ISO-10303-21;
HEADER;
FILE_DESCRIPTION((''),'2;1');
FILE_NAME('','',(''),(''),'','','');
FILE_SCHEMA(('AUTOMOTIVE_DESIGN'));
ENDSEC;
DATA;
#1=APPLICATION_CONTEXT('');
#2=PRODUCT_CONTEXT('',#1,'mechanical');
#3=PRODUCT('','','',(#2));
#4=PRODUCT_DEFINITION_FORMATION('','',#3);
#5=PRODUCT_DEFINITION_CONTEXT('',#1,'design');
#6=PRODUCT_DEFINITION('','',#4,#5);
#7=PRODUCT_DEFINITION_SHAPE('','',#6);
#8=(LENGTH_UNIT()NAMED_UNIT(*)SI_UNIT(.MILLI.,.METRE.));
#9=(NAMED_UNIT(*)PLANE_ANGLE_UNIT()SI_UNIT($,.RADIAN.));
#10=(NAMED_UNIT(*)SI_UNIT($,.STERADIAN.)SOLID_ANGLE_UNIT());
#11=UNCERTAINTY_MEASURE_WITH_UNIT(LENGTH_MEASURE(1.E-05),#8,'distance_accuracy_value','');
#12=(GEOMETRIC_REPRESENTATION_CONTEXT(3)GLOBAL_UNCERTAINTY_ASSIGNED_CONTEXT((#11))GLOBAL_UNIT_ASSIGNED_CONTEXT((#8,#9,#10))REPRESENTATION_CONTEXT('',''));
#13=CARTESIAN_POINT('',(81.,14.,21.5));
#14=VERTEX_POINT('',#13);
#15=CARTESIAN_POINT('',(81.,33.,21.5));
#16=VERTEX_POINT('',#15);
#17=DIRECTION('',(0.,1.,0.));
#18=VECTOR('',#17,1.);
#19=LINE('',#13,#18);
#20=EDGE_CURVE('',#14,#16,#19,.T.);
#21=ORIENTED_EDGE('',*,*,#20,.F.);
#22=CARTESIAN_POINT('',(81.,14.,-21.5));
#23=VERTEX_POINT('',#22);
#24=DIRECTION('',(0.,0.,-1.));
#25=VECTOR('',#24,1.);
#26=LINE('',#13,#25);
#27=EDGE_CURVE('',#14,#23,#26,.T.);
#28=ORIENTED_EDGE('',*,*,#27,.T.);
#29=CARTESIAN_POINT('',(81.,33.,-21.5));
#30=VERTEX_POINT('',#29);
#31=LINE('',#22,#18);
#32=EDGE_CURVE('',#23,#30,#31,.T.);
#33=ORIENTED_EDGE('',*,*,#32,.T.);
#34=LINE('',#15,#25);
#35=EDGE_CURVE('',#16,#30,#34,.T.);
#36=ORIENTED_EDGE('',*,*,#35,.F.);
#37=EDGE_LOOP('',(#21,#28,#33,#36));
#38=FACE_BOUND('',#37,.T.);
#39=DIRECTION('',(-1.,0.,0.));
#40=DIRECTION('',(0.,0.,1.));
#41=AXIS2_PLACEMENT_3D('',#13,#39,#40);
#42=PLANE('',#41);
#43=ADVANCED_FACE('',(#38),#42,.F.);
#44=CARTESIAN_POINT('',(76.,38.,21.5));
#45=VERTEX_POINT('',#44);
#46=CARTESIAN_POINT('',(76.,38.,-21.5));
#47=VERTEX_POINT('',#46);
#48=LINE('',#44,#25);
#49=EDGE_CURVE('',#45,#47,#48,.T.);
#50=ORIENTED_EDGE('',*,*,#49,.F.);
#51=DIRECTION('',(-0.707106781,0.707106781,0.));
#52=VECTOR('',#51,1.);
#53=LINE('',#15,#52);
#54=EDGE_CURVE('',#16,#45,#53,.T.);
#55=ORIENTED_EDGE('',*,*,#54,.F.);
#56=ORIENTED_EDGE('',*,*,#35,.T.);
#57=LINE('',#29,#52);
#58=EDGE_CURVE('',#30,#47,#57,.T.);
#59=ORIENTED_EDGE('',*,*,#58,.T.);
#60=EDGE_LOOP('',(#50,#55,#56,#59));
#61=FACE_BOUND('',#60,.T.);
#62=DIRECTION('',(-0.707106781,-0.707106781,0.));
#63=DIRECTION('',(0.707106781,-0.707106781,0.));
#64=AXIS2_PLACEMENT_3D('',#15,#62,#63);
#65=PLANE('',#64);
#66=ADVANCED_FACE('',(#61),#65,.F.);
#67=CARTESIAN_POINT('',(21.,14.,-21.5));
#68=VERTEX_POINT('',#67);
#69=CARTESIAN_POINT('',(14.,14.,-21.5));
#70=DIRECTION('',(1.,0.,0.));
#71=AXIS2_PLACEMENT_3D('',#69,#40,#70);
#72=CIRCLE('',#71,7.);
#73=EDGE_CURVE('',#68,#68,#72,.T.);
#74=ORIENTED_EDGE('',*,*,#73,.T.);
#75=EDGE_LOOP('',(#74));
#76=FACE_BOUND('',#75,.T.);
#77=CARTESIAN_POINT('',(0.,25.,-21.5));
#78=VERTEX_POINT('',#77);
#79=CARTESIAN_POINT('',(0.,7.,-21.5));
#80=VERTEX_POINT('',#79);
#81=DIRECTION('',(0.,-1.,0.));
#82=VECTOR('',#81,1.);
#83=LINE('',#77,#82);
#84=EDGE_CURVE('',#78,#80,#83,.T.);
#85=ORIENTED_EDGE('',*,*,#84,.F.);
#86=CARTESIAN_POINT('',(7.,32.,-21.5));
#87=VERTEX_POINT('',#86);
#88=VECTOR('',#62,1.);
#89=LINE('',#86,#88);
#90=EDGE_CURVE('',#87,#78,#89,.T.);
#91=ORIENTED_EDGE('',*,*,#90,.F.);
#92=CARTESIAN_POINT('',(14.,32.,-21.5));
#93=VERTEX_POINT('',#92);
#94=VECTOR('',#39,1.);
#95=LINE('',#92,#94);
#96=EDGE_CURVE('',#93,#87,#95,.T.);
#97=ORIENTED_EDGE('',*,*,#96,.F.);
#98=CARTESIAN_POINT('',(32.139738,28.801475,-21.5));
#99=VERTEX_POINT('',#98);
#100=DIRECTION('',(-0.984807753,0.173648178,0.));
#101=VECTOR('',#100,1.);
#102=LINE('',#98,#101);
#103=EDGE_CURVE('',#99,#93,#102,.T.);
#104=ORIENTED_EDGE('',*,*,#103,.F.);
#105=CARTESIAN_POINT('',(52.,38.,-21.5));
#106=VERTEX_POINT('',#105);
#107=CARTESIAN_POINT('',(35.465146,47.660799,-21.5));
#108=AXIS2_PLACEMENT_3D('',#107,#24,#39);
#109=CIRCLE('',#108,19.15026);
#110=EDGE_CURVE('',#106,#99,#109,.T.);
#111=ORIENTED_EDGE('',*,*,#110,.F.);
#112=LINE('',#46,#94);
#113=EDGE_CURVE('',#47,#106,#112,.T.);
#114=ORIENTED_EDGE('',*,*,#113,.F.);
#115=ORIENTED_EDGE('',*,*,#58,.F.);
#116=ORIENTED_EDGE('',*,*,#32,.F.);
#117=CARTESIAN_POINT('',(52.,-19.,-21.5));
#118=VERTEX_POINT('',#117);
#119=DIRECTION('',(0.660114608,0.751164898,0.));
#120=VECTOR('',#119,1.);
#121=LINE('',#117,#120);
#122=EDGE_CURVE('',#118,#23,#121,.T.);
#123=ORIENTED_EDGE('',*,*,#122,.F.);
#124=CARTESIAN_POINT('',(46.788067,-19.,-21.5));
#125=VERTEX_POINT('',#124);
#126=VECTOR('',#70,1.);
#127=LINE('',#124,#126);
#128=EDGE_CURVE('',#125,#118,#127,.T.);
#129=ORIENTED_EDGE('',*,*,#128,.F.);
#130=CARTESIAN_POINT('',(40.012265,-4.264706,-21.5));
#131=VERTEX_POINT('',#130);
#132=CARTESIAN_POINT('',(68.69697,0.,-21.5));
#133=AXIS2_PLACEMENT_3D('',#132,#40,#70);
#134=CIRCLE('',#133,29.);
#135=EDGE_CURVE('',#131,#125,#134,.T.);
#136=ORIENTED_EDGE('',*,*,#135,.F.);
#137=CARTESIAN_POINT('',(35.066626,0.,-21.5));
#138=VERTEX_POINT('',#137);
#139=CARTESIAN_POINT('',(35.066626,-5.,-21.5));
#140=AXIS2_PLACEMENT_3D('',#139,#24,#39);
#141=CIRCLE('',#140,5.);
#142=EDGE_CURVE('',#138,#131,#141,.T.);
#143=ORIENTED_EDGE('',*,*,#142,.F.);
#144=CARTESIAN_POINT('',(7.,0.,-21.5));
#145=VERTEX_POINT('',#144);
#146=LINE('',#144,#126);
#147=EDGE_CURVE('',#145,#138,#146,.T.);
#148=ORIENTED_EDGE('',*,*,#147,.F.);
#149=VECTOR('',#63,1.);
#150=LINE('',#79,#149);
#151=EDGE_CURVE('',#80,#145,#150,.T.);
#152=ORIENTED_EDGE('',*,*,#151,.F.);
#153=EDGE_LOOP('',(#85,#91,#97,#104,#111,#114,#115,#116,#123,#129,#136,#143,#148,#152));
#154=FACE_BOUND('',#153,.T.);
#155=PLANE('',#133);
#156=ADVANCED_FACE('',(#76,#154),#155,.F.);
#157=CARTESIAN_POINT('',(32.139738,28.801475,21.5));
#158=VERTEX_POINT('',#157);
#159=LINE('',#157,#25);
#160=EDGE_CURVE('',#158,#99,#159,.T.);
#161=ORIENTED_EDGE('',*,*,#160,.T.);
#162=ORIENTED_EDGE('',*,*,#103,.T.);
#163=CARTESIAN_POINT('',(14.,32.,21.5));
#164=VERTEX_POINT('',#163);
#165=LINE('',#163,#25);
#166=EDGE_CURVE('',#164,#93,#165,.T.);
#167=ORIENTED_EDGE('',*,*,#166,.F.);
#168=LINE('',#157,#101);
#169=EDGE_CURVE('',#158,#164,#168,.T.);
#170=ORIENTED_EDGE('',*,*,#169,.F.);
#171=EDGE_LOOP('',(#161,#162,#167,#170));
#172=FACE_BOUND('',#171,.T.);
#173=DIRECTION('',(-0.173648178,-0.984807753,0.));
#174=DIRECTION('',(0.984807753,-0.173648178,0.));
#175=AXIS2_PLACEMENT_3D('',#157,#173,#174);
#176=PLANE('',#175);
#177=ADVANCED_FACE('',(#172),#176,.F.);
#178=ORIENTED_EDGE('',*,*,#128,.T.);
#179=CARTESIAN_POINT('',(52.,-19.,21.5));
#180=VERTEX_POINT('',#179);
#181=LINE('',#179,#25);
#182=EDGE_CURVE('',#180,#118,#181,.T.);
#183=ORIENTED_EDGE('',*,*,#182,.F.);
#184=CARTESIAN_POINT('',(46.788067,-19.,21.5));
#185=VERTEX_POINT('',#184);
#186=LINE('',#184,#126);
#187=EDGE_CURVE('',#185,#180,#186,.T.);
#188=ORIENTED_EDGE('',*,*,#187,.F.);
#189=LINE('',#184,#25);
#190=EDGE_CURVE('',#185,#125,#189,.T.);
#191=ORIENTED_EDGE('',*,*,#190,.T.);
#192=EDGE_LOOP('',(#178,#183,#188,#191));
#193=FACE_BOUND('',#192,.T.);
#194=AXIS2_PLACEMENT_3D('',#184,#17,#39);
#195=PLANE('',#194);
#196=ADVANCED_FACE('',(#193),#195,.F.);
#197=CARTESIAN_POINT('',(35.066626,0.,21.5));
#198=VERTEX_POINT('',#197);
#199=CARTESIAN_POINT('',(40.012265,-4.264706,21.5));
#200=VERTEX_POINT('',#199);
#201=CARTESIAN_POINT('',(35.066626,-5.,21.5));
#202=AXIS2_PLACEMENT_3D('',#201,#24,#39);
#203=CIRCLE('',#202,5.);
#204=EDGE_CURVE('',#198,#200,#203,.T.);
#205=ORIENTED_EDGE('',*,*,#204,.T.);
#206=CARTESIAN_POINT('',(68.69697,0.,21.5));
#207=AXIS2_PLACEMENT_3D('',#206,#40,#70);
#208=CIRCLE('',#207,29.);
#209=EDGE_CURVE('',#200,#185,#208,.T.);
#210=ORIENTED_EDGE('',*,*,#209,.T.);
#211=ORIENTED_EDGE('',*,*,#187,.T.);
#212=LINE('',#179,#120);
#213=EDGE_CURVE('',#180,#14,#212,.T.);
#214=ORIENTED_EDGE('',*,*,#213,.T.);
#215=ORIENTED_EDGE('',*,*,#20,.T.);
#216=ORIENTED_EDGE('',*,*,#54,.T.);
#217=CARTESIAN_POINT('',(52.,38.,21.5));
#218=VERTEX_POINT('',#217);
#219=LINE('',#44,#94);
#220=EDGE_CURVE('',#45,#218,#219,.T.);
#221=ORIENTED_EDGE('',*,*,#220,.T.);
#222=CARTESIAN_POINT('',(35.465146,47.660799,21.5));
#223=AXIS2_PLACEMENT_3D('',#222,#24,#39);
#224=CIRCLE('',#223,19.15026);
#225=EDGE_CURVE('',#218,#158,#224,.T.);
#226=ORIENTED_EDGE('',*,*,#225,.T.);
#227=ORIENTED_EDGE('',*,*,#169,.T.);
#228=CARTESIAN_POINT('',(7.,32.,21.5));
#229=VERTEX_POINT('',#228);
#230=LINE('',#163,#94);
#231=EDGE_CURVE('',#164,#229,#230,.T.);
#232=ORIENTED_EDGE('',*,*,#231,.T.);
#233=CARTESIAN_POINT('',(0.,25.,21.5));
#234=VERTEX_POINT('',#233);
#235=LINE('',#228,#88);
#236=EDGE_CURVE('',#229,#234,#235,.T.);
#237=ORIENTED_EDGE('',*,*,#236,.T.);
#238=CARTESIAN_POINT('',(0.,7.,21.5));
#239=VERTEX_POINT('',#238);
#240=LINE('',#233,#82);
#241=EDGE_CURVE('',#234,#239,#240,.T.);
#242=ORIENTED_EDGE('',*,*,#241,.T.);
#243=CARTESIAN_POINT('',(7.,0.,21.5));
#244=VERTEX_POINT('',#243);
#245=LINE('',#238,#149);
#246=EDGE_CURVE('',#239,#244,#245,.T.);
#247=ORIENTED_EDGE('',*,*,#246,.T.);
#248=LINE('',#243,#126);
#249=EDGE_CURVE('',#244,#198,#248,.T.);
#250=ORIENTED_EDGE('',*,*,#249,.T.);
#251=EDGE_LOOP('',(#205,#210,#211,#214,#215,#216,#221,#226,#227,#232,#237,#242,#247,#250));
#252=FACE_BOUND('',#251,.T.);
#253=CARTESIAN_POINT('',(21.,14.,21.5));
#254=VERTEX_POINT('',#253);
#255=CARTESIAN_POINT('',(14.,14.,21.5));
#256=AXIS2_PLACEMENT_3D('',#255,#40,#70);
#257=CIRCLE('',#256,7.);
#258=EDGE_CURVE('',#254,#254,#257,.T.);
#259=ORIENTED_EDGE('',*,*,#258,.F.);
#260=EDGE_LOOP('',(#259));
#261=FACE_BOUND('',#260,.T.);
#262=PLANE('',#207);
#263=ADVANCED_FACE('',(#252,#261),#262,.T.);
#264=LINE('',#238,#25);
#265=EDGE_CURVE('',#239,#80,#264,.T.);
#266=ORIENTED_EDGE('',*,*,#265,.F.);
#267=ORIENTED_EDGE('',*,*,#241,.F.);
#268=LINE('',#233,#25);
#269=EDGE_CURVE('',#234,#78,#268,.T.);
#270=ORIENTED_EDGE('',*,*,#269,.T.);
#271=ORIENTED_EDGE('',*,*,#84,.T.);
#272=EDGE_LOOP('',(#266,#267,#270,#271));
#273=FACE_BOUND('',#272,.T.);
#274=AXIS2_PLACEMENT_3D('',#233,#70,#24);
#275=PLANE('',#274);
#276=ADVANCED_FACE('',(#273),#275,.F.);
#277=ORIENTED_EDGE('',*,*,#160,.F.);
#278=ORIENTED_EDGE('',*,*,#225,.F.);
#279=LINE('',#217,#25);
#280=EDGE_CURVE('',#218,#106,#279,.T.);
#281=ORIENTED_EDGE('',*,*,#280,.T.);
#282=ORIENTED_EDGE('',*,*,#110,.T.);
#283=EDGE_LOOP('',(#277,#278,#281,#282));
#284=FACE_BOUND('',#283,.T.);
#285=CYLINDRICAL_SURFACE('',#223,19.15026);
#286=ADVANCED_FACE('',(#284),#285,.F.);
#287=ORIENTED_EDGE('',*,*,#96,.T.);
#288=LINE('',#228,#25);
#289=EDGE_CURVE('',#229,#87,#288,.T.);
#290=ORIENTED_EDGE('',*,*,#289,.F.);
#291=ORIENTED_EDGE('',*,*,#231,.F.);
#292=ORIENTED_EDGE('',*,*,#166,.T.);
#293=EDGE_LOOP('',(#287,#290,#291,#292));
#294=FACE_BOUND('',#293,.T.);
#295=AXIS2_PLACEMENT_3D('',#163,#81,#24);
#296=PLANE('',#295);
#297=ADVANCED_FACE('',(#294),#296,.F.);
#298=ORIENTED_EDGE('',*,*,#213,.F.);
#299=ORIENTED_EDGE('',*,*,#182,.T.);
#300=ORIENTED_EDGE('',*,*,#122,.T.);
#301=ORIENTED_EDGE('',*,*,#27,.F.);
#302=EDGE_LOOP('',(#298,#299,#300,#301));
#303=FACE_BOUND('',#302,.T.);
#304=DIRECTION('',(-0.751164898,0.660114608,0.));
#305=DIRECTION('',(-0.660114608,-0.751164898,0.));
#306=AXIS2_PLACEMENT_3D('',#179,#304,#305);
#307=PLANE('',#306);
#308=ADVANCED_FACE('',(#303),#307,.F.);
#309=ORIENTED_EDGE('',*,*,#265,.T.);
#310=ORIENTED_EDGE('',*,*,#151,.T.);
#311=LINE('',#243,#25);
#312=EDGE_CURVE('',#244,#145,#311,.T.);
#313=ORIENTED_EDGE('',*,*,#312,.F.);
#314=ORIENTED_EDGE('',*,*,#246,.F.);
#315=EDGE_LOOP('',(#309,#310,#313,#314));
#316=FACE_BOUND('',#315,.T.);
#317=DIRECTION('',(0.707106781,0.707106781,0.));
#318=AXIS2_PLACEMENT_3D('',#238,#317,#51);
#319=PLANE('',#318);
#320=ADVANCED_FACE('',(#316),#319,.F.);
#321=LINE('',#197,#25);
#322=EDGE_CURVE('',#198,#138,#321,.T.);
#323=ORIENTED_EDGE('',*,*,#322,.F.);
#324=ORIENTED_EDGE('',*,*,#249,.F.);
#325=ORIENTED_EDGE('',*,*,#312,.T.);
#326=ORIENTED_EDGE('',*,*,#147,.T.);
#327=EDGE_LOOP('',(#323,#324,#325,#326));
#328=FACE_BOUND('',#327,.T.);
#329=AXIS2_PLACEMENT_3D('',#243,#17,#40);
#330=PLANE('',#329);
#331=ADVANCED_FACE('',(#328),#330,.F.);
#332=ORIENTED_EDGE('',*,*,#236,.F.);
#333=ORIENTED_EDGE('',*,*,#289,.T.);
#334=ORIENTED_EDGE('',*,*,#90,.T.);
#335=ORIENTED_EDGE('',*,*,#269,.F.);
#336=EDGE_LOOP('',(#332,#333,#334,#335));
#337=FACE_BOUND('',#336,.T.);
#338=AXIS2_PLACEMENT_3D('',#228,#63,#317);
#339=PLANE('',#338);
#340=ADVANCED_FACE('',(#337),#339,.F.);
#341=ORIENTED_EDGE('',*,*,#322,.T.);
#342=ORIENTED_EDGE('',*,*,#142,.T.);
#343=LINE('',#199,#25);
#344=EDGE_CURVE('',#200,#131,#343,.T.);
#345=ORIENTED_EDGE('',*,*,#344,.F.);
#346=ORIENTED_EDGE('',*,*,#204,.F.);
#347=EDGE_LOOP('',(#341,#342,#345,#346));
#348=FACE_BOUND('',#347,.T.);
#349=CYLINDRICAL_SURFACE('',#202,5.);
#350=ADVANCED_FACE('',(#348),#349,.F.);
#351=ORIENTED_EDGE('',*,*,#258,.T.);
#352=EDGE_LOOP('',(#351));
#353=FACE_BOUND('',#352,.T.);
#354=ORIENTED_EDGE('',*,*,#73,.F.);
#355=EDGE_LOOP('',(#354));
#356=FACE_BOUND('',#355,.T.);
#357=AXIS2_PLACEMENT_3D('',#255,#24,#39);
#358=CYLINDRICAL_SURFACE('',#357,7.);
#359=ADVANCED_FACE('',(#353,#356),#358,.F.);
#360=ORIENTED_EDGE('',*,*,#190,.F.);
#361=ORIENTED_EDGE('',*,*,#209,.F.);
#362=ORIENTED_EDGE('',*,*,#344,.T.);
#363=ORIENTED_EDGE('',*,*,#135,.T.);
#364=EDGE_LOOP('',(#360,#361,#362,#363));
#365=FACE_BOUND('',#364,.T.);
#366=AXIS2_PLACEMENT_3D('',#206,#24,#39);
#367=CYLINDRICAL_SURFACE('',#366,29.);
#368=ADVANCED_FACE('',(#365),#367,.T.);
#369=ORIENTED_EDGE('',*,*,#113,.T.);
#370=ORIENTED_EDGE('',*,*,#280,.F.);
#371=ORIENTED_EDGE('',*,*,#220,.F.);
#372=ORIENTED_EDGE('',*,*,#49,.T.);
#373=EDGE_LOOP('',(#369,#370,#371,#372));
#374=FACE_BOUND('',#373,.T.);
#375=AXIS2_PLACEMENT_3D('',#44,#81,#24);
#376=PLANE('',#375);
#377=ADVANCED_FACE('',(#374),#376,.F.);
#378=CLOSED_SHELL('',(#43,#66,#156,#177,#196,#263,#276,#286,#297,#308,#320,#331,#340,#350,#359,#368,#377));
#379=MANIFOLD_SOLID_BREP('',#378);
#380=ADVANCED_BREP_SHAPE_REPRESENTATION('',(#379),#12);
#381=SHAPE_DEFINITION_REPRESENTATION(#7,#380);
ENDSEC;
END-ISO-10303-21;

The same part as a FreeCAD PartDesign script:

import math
import FreeCAD as App
import Part
import Sketcher
from FreeCAD import Vector
Q = App.Units.Quantity

doc = App.newDocument("Part")
body = doc.addObject("PartDesign::Body", "Body")

# Sketch on XY plane
sketch1 = body.newObject("Sketcher::SketchObject", "Sketch")
sketch1.AttachmentSupport = (doc.getObject("XY_Plane"), [""])
sketch1.MapMode = "FlatFace"
sketch1.addGeometry(Part.LineSegment(Vector(47, -19, 0), Vector(52, -19, 0)), False)
sketch1.addGeometry(Part.LineSegment(Vector(52, -19, 0), Vector(81, 14, 0)), False)
sketch1.addGeometry(Part.LineSegment(Vector(81, 14, 0), Vector(81, 33, 0)), False)
sketch1.addGeometry(Part.LineSegment(Vector(81, 33, 0), Vector(76, 38, 0)), False)
sketch1.addGeometry(Part.LineSegment(Vector(76, 38, 0), Vector(52, 38, 0)), False)
sketch1.addGeometry(Part.ArcOfCircle(Part.Circle(Vector(35, 48, 0), Vector(0, 0, 1), 19), math.radians(-100), math.radians(-30)), False)
sketch1.addGeometry(Part.LineSegment(Vector(32, 29, 0), Vector(14, 32, 0)), False)
sketch1.addGeometry(Part.LineSegment(Vector(14, 32, 0), Vector(7, 32, 0)), False)
sketch1.addGeometry(Part.LineSegment(Vector(7, 32, 0), Vector(0, 25, 0)), False)
sketch1.addGeometry(Part.LineSegment(Vector(0, 25, 0), Vector(0, 7, 0)), False)
sketch1.addGeometry(Part.LineSegment(Vector(0, 7, 0), Vector(7, 0, 0)), False)
sketch1.addGeometry(Part.LineSegment(Vector(7, 0, 0), Vector(35, 0, 0)), False)
sketch1.addGeometry(Part.ArcOfCircle(Part.Circle(Vector(35, -5, 0), Vector(0, 0, 1), 5), math.radians(8), math.radians(90)), False)
sketch1.addGeometry(Part.ArcOfCircle(Part.Circle(Vector(69, 0, 0), Vector(0, 0, 1), 29), math.radians(-172), math.radians(-139)), False)
sketch1.addGeometry(Part.Circle(Vector(14, 14, 0), Vector(0, 0, 1), 7), False)
sketch1.addConstraint(Sketcher.Constraint("Coincident", 0, 2, 1, 1))
sketch1.addConstraint(Sketcher.Constraint("Coincident", 1, 2, 2, 1))
sketch1.addConstraint(Sketcher.Constraint("Coincident", 2, 2, 3, 1))
sketch1.addConstraint(Sketcher.Constraint("Coincident", 3, 2, 4, 1))
sketch1.addConstraint(Sketcher.Constraint("Coincident", 4, 2, 5, 2))
sketch1.addConstraint(Sketcher.Constraint("Tangent", 5, 1, 6, 1))
sketch1.addConstraint(Sketcher.Constraint("Coincident", 6, 2, 7, 1))
sketch1.addConstraint(Sketcher.Constraint("Coincident", 7, 2, 8, 1))
sketch1.addConstraint(Sketcher.Constraint("Coincident", 8, 2, 9, 1))
sketch1.addConstraint(Sketcher.Constraint("Coincident", 9, 2, 10, 1))
sketch1.addConstraint(Sketcher.Constraint("Coincident", 10, 2, 11, 1))
sketch1.addConstraint(Sketcher.Constraint("Tangent", 11, 2, 12, 2))
sketch1.addConstraint(Sketcher.Constraint("Tangent", 12, 1, 13, 1))
sketch1.addConstraint(Sketcher.Constraint("Coincident", 13, 2, 0, 1))
sketch1.addConstraint(Sketcher.Constraint("Horizontal", 0))
sketch1.addConstraint(Sketcher.Constraint("Vertical", 2))
sketch1.addConstraint(Sketcher.Constraint("Horizontal", 4))
sketch1.addConstraint(Sketcher.Constraint("Horizontal", 7))
sketch1.addConstraint(Sketcher.Constraint("Vertical", 9))
sketch1.addConstraint(Sketcher.Constraint("Horizontal", 11))
sketch1.addConstraint(Sketcher.Constraint("PointOnObject", 13, 3, -1))
sketch1.addConstraint(Sketcher.Constraint("PointOnObject", 8, 2, -2))
sketch1.addConstraint(Sketcher.Constraint("PointOnObject", 10, 2, -1))
sketch1.addConstraint(Sketcher.Constraint("Perpendicular", 3, 8))
sketch1.addConstraint(Sketcher.Constraint("Perpendicular", 8, 10))
sketch1.addConstraint(Sketcher.Constraint("Horizontal", 14, 3, 1, 2))
sketch1.addConstraint(Sketcher.Constraint("Vertical", 0, 2, 4, 2))
sketch1.addConstraint(Sketcher.Constraint("Vertical", 14, 3, 6, 2))
sketch1.addConstraint(Sketcher.Constraint("Vertical", 7, 2, 10, 2))
sketch1.addConstraint(Sketcher.Constraint("Equal", 8, 10))
sketch1.addConstraint(Sketcher.Constraint("Diameter", 14, Q("14 mm")))
sketch1.addConstraint(Sketcher.Constraint("Radius", 12, Q("5 mm")))
sketch1.addConstraint(Sketcher.Constraint("Radius", 13, Q("29 mm")))
sketch1.addConstraint(Sketcher.Constraint("DistanceX", 4, 2, 4, 1, Q("24 mm")))
sketch1.addConstraint(Sketcher.Constraint("DistanceX", 7, 2, 7, 1, Q("7 mm")))
sketch1.addConstraint(Sketcher.Constraint("DistanceY", 2, 1, 2, 2, Q("19 mm")))
sketch1.addConstraint(Sketcher.Constraint("DistanceY", 9, 2, 9, 1, Q("18 mm")))
sketch1.addConstraint(Sketcher.Constraint("Angle", 6, Q("170 deg")))
sketch1.addConstraint(Sketcher.Constraint("DistanceX", -1, 1, 14, 3, Q("14 mm")))
sketch1.addConstraint(Sketcher.Constraint("DistanceY", -1, 1, 14, 3, Q("14 mm")))
sketch1.addConstraint(Sketcher.Constraint("DistanceX", -1, 1, 0, 2, Q("52 mm")))
sketch1.addConstraint(Sketcher.Constraint("DistanceY", 0, 2, -1, 1, Q("19 mm")))
sketch1.addConstraint(Sketcher.Constraint("DistanceX", -1, 1, 1, 2, Q("81 mm")))
sketch1.addConstraint(Sketcher.Constraint("Radius", 5, Q("19.15026 mm")))
sketch1.addConstraint(Sketcher.Constraint("DistanceX", 0, 1, 0, 2, Q("5.211933 mm")))
pad1 = body.newObject("PartDesign::Pad", "Pad")
pad1.Profile = sketch1
pad1.Length = 43
pad1.Midplane = True

doc.recompute()
